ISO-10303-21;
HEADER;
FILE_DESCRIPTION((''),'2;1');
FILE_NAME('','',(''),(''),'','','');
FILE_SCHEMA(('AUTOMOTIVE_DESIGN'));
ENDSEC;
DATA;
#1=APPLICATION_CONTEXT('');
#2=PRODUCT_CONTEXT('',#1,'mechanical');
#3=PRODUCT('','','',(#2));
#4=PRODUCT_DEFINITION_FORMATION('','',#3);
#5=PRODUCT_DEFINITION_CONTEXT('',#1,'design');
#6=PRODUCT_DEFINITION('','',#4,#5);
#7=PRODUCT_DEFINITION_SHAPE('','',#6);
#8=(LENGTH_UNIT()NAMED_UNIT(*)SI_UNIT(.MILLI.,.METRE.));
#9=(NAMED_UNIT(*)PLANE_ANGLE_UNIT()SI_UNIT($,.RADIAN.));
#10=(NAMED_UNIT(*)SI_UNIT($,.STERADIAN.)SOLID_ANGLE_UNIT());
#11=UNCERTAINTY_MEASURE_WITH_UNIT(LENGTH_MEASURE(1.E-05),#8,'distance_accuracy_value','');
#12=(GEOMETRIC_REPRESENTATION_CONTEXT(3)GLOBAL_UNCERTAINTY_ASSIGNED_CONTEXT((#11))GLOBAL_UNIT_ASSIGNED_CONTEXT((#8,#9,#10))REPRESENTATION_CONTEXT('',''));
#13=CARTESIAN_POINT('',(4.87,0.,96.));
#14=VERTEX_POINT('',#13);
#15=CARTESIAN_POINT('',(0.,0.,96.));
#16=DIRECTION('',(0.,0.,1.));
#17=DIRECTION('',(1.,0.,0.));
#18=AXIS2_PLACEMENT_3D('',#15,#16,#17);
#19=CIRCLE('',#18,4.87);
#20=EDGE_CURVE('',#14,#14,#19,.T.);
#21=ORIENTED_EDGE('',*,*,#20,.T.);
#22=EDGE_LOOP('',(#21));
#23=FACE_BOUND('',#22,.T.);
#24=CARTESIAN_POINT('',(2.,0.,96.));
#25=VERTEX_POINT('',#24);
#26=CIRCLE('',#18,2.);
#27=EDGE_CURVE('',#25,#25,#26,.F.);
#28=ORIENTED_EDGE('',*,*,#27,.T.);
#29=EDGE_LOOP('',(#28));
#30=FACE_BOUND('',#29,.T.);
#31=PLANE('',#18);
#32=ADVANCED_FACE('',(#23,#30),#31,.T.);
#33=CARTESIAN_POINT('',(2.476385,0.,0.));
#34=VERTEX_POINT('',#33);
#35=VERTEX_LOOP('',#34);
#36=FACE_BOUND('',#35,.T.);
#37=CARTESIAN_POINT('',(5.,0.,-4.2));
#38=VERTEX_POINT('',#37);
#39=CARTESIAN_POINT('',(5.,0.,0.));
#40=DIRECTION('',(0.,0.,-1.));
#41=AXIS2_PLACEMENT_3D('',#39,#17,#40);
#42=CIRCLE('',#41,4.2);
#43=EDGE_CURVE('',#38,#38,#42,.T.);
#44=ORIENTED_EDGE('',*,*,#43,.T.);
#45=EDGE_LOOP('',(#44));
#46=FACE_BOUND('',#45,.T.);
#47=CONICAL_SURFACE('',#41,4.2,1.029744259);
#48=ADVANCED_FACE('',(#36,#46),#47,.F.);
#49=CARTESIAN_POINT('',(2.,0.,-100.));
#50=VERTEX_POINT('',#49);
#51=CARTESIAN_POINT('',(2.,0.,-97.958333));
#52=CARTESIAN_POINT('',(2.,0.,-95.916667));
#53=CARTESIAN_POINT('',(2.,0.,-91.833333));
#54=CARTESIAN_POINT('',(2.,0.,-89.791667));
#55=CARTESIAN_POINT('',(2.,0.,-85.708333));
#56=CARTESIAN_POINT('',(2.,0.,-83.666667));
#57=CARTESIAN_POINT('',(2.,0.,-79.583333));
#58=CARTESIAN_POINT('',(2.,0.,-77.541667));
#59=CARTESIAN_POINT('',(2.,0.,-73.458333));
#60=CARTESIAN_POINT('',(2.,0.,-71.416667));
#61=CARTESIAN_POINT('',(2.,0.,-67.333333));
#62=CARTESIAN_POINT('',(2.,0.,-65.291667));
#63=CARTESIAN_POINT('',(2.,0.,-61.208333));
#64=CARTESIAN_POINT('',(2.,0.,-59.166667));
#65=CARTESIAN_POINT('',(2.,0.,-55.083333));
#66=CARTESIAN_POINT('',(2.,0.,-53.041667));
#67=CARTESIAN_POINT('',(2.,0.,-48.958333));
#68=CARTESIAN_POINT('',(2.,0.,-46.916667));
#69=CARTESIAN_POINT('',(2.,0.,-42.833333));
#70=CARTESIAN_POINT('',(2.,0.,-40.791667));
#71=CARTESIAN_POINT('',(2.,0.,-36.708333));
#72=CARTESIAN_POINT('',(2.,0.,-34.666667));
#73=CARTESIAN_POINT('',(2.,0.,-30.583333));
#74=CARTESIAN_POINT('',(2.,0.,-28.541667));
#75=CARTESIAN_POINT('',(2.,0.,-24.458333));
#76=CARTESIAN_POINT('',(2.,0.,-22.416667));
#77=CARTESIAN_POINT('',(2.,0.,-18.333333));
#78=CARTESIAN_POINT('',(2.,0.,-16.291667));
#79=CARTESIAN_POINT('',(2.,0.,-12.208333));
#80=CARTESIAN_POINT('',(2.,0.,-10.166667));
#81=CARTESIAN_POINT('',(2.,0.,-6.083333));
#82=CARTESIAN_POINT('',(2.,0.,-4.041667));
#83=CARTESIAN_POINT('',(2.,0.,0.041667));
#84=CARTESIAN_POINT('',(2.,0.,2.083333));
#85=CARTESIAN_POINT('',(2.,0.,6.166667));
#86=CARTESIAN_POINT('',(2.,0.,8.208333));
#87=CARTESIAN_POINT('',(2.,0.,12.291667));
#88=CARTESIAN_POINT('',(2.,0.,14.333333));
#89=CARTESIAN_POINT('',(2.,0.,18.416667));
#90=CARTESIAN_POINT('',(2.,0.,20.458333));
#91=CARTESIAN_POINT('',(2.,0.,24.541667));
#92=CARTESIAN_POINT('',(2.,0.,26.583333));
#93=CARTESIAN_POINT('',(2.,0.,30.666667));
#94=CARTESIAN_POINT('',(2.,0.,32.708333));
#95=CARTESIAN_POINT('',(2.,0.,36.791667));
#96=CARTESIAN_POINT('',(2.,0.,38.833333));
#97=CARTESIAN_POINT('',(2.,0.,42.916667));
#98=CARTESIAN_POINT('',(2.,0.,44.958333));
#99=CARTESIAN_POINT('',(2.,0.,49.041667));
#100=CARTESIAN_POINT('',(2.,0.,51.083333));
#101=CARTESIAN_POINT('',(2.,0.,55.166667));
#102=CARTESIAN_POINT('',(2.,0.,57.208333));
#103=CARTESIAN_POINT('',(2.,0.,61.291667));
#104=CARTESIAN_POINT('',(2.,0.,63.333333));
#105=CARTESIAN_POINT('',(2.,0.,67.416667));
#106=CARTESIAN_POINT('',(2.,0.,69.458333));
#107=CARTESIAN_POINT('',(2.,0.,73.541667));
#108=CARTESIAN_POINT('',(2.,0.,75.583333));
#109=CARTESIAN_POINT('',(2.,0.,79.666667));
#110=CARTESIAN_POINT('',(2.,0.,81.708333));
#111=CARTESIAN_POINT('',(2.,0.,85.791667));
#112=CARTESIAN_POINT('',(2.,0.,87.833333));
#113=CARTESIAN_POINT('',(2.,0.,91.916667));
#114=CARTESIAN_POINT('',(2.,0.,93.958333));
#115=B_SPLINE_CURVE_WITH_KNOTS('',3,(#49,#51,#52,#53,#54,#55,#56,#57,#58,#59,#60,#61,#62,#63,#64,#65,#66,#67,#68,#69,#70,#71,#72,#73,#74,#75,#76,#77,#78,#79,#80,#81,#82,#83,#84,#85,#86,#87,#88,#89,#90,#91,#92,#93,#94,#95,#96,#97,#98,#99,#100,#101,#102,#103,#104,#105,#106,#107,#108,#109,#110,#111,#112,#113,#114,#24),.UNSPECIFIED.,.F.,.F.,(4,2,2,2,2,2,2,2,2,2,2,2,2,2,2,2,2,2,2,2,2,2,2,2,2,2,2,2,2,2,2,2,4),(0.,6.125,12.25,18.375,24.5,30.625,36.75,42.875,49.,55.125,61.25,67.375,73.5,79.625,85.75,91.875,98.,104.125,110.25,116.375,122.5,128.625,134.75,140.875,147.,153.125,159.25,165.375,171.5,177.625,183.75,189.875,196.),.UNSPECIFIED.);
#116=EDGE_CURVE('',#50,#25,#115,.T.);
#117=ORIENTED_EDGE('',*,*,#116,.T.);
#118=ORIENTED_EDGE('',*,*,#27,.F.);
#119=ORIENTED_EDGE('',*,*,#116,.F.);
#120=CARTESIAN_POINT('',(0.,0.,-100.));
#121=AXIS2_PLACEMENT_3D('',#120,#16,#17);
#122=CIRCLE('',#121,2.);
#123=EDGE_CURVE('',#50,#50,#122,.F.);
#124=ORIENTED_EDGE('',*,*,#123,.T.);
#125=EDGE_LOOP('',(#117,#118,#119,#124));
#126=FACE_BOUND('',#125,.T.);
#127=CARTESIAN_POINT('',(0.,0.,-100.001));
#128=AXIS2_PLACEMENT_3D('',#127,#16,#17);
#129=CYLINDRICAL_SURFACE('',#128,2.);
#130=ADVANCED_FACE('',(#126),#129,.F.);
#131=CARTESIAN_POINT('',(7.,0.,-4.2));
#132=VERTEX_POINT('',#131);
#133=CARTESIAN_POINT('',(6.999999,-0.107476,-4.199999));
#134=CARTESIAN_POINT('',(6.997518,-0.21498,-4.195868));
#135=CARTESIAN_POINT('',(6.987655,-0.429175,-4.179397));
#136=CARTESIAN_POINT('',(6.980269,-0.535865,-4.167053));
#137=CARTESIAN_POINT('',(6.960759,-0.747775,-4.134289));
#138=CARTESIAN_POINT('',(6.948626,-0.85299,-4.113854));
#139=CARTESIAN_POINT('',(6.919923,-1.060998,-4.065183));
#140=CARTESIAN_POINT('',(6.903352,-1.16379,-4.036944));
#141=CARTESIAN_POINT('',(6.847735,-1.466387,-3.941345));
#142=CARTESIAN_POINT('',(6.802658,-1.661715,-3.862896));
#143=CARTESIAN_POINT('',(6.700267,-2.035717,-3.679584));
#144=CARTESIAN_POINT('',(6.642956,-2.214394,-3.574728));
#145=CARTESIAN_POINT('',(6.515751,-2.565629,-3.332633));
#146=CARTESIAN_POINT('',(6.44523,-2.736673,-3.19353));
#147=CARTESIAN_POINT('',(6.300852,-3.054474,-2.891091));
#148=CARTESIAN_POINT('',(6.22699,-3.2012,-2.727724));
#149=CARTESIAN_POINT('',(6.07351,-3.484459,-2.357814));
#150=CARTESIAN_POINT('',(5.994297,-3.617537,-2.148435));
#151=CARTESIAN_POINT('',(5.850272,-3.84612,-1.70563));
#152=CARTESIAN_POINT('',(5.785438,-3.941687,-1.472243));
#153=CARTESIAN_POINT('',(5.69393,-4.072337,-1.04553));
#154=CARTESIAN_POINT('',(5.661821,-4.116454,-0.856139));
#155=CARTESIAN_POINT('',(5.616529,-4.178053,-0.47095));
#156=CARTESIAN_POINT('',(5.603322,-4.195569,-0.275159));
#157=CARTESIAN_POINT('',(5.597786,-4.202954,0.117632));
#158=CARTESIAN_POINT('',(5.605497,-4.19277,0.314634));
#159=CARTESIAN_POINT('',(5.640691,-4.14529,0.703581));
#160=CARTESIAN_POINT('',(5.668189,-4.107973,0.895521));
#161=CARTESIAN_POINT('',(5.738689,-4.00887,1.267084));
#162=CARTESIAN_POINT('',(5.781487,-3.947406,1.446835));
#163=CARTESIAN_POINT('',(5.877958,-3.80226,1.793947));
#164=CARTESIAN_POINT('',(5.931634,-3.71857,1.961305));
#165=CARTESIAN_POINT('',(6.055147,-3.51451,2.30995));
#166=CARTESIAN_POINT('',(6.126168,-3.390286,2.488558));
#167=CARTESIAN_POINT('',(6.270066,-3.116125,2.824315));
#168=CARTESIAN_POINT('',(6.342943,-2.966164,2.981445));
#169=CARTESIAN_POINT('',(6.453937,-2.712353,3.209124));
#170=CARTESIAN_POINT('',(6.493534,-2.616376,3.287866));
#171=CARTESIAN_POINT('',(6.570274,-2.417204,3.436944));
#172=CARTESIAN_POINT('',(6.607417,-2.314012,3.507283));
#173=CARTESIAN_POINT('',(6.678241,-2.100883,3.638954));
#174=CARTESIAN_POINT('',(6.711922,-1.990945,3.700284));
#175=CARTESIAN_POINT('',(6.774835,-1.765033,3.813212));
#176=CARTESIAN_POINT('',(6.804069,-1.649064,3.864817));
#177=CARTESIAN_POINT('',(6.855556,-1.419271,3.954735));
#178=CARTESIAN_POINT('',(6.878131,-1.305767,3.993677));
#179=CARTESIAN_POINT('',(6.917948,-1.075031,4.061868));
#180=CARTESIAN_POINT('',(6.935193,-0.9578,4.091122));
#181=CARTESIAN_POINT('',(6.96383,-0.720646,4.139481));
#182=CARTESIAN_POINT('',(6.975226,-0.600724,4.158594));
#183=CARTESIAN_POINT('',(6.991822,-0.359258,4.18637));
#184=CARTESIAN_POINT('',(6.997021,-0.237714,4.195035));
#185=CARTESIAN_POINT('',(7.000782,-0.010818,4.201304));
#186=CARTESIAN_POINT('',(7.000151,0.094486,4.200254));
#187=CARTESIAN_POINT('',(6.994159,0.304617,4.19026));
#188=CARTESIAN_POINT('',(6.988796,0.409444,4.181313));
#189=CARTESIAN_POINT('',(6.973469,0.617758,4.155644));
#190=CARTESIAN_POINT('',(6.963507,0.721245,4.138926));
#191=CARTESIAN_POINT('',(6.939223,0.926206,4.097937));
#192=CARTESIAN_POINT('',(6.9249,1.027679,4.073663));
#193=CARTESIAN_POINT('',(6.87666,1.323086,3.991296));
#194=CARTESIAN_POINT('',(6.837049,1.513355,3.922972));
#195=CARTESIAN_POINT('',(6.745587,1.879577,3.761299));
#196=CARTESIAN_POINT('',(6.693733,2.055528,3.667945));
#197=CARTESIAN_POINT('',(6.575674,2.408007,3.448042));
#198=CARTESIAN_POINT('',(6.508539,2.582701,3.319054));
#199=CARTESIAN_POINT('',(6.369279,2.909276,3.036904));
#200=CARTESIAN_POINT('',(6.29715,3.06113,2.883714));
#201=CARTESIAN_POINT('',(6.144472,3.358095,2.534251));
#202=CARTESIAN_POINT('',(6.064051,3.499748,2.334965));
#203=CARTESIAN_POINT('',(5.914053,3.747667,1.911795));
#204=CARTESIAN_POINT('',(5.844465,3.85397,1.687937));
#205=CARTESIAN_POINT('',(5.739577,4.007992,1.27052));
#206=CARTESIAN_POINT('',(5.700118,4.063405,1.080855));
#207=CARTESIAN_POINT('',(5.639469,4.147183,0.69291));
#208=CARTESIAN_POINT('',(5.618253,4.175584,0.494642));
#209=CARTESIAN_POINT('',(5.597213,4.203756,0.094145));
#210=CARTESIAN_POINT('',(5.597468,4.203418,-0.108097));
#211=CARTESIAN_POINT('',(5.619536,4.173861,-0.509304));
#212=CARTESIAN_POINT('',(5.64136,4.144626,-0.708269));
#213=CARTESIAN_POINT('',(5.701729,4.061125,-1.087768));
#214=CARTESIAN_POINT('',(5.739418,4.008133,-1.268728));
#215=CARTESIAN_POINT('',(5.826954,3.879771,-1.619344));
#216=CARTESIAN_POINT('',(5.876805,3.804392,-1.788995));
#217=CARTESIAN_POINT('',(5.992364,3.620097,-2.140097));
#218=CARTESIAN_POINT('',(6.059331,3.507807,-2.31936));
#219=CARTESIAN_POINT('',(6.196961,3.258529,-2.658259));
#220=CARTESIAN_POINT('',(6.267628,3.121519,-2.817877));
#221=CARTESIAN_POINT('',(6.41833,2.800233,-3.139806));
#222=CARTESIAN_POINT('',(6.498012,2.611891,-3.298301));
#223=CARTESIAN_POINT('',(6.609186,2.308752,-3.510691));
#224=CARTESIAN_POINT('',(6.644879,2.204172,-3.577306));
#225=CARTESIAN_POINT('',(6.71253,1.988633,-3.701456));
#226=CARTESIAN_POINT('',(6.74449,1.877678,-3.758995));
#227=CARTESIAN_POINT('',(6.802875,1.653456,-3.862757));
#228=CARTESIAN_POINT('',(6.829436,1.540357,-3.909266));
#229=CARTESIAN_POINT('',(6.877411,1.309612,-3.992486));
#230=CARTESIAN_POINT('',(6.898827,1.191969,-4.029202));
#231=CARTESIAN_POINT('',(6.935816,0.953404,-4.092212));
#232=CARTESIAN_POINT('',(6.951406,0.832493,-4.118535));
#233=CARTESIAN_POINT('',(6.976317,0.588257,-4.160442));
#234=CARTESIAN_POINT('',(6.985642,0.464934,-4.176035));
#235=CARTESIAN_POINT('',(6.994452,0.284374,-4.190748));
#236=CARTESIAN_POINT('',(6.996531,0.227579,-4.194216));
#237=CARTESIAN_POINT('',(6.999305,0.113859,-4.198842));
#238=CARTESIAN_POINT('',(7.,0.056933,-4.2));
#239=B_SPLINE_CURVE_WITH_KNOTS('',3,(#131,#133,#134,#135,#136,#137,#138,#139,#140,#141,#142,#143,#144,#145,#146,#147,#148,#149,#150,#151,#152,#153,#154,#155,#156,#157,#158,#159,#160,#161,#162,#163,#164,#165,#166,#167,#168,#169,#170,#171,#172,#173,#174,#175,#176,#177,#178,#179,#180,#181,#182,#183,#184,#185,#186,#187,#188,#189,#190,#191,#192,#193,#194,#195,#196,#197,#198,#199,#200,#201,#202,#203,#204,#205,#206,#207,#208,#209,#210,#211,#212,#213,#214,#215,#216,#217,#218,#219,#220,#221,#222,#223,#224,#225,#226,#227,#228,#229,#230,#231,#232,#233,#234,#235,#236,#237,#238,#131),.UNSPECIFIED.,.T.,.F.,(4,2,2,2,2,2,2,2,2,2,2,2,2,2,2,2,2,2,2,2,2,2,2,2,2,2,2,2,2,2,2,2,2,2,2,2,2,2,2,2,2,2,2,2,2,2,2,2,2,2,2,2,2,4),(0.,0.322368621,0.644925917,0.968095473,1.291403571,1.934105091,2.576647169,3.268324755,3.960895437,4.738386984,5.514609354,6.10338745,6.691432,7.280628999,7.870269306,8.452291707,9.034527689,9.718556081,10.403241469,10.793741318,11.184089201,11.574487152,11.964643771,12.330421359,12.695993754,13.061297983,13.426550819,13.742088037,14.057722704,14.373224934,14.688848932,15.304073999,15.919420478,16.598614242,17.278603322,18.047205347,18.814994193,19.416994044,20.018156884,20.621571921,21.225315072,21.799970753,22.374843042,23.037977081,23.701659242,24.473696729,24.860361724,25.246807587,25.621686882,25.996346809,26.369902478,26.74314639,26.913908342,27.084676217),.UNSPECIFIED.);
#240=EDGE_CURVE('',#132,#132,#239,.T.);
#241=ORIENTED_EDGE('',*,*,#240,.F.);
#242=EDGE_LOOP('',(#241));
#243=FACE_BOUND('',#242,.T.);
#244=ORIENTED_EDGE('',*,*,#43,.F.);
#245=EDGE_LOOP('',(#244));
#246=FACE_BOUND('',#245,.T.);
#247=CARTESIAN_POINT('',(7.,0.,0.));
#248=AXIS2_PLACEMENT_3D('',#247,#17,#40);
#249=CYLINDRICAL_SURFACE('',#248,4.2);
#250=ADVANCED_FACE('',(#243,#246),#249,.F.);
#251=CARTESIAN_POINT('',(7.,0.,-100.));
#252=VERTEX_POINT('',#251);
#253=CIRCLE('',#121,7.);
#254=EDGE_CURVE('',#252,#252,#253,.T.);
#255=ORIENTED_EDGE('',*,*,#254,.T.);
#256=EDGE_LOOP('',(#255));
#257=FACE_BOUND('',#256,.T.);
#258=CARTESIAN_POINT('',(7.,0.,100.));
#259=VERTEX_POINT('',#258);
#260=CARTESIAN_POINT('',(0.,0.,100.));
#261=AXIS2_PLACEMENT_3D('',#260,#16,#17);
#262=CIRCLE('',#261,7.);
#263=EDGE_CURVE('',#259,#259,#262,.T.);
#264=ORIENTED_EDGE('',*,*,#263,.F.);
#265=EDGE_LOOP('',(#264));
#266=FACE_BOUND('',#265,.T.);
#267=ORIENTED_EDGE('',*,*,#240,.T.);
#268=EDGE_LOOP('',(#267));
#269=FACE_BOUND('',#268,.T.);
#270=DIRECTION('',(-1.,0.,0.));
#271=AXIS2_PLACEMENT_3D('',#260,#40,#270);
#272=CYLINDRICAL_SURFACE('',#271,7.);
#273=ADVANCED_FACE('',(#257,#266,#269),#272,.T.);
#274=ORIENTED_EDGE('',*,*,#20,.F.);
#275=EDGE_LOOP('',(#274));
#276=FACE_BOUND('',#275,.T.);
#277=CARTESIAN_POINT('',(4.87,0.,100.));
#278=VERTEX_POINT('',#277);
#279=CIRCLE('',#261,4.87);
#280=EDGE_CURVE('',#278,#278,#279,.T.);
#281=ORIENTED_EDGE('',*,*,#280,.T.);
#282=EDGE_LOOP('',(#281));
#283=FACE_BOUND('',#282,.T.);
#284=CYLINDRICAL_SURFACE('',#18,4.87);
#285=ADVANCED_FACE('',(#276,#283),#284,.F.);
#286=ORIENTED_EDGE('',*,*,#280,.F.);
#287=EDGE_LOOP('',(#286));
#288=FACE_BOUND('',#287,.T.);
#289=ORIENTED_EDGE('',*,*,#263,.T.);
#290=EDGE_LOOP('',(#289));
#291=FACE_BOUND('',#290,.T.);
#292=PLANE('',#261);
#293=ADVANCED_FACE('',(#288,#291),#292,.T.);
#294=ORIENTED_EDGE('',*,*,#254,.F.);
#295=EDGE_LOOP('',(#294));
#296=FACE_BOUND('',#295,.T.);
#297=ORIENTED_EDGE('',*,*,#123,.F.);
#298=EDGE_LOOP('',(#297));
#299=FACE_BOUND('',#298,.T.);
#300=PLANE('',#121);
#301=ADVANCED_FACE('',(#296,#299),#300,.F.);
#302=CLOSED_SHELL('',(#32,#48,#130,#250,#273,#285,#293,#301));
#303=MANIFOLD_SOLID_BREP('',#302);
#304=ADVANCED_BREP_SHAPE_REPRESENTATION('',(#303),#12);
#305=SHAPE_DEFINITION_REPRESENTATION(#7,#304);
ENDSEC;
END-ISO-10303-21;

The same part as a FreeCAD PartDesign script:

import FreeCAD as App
import Part
import Sketcher

doc = App.newDocument("Part")
body = doc.addObject("PartDesign::Body", "Body")

sketch1 = body.newObject("Sketcher::SketchObject", "Sketch")
sketch1.AttachmentSupport = (doc.getObject("XY_Plane"), [""])
sketch1.MapMode = "FlatFace"
sketch1.addGeometry(Part.Circle(App.Vector(0, 0, 0), App.Vector(0, 0, 1), 7), False)
sketch1.addConstraint([
    Sketcher.Constraint("Coincident", 0, 3, -1, 1),
    Sketcher.Constraint("Diameter", 0, 14.0),
])
pad1 = body.newObject("PartDesign::Pad", "Pad")
pad1.Profile = sketch1
pad1.Length = 200
pad1.Midplane = True

sketch2 = body.newObject("Sketcher::SketchObject", "Sketch001")
sketch2.AttachmentSupport = (doc.getObject("XY_Plane"), [""])
sketch2.MapMode = "FlatFace"
sketch2.AttachmentOffset = App.Placement(App.Vector(0, 0, 100), App.Rotation())
sketch2.addGeometry(Part.Circle(App.Vector(0, 0, 0), App.Vector(0, 0, 1), 2), False)
sketch2.addConstraint([
    Sketcher.Constraint("Coincident", 0, 3, -1, 1),
    Sketcher.Constraint("Diameter", 0, 4.0),
])
pocket1 = body.newObject("PartDesign::Pocket", "Pocket")
pocket1.Profile = sketch2
pocket1.Type = "UpToFirst"

sketch3 = body.newObject("Sketcher::SketchObject", "Sketch002")
sketch3.AttachmentSupport = (doc.getObject("XY_Plane"), [""])
sketch3.MapMode = "FlatFace"
sketch3.AttachmentOffset = App.Placement(App.Vector(0, 0, 100), App.Rotation())
sketch3.addGeometry(Part.Circle(App.Vector(0, 0, 0), App.Vector(0, 0, 1), 4.9), False)
sketch3.addConstraint([
    Sketcher.Constraint("Coincident", 0, 3, -1, 1),
    Sketcher.Constraint("Diameter", 0, 9.74),
])
pocket2 = body.newObject("PartDesign::Pocket", "Pocket001")
pocket2.Profile = sketch3
pocket2.Length = 4

sketch4 = body.newObject("Sketcher::SketchObject", "Sketch003")
sketch4.AttachmentSupport = (doc.getObject("YZ_Plane"), [""])
sketch4.MapMode = "FlatFace"
sketch4.AttachmentOffset = App.Placement(App.Vector(0, 0, 7), App.Rotation())
sketch4.addGeometry(Part.Circle(App.Vector(0, 0, 0), App.Vector(0, 0, 1), 4.2), False)
sketch4.addConstraint([
    Sketcher.Constraint("Coincident", 0, 3, -1, 1),
    Sketcher.Constraint("Diameter", 0, 8.4),
])
doc.recompute()
hole = body.newObject("PartDesign::Hole", "Hole")
hole.Profile = sketch4
hole.ThreadType = "None"
hole.Diameter = 8.4
hole.DepthType = "Dimension"
hole.Depth = 2
hole.DrillPoint = "Angled"
hole.DrillPointAngle = 118

doc.recompute()
